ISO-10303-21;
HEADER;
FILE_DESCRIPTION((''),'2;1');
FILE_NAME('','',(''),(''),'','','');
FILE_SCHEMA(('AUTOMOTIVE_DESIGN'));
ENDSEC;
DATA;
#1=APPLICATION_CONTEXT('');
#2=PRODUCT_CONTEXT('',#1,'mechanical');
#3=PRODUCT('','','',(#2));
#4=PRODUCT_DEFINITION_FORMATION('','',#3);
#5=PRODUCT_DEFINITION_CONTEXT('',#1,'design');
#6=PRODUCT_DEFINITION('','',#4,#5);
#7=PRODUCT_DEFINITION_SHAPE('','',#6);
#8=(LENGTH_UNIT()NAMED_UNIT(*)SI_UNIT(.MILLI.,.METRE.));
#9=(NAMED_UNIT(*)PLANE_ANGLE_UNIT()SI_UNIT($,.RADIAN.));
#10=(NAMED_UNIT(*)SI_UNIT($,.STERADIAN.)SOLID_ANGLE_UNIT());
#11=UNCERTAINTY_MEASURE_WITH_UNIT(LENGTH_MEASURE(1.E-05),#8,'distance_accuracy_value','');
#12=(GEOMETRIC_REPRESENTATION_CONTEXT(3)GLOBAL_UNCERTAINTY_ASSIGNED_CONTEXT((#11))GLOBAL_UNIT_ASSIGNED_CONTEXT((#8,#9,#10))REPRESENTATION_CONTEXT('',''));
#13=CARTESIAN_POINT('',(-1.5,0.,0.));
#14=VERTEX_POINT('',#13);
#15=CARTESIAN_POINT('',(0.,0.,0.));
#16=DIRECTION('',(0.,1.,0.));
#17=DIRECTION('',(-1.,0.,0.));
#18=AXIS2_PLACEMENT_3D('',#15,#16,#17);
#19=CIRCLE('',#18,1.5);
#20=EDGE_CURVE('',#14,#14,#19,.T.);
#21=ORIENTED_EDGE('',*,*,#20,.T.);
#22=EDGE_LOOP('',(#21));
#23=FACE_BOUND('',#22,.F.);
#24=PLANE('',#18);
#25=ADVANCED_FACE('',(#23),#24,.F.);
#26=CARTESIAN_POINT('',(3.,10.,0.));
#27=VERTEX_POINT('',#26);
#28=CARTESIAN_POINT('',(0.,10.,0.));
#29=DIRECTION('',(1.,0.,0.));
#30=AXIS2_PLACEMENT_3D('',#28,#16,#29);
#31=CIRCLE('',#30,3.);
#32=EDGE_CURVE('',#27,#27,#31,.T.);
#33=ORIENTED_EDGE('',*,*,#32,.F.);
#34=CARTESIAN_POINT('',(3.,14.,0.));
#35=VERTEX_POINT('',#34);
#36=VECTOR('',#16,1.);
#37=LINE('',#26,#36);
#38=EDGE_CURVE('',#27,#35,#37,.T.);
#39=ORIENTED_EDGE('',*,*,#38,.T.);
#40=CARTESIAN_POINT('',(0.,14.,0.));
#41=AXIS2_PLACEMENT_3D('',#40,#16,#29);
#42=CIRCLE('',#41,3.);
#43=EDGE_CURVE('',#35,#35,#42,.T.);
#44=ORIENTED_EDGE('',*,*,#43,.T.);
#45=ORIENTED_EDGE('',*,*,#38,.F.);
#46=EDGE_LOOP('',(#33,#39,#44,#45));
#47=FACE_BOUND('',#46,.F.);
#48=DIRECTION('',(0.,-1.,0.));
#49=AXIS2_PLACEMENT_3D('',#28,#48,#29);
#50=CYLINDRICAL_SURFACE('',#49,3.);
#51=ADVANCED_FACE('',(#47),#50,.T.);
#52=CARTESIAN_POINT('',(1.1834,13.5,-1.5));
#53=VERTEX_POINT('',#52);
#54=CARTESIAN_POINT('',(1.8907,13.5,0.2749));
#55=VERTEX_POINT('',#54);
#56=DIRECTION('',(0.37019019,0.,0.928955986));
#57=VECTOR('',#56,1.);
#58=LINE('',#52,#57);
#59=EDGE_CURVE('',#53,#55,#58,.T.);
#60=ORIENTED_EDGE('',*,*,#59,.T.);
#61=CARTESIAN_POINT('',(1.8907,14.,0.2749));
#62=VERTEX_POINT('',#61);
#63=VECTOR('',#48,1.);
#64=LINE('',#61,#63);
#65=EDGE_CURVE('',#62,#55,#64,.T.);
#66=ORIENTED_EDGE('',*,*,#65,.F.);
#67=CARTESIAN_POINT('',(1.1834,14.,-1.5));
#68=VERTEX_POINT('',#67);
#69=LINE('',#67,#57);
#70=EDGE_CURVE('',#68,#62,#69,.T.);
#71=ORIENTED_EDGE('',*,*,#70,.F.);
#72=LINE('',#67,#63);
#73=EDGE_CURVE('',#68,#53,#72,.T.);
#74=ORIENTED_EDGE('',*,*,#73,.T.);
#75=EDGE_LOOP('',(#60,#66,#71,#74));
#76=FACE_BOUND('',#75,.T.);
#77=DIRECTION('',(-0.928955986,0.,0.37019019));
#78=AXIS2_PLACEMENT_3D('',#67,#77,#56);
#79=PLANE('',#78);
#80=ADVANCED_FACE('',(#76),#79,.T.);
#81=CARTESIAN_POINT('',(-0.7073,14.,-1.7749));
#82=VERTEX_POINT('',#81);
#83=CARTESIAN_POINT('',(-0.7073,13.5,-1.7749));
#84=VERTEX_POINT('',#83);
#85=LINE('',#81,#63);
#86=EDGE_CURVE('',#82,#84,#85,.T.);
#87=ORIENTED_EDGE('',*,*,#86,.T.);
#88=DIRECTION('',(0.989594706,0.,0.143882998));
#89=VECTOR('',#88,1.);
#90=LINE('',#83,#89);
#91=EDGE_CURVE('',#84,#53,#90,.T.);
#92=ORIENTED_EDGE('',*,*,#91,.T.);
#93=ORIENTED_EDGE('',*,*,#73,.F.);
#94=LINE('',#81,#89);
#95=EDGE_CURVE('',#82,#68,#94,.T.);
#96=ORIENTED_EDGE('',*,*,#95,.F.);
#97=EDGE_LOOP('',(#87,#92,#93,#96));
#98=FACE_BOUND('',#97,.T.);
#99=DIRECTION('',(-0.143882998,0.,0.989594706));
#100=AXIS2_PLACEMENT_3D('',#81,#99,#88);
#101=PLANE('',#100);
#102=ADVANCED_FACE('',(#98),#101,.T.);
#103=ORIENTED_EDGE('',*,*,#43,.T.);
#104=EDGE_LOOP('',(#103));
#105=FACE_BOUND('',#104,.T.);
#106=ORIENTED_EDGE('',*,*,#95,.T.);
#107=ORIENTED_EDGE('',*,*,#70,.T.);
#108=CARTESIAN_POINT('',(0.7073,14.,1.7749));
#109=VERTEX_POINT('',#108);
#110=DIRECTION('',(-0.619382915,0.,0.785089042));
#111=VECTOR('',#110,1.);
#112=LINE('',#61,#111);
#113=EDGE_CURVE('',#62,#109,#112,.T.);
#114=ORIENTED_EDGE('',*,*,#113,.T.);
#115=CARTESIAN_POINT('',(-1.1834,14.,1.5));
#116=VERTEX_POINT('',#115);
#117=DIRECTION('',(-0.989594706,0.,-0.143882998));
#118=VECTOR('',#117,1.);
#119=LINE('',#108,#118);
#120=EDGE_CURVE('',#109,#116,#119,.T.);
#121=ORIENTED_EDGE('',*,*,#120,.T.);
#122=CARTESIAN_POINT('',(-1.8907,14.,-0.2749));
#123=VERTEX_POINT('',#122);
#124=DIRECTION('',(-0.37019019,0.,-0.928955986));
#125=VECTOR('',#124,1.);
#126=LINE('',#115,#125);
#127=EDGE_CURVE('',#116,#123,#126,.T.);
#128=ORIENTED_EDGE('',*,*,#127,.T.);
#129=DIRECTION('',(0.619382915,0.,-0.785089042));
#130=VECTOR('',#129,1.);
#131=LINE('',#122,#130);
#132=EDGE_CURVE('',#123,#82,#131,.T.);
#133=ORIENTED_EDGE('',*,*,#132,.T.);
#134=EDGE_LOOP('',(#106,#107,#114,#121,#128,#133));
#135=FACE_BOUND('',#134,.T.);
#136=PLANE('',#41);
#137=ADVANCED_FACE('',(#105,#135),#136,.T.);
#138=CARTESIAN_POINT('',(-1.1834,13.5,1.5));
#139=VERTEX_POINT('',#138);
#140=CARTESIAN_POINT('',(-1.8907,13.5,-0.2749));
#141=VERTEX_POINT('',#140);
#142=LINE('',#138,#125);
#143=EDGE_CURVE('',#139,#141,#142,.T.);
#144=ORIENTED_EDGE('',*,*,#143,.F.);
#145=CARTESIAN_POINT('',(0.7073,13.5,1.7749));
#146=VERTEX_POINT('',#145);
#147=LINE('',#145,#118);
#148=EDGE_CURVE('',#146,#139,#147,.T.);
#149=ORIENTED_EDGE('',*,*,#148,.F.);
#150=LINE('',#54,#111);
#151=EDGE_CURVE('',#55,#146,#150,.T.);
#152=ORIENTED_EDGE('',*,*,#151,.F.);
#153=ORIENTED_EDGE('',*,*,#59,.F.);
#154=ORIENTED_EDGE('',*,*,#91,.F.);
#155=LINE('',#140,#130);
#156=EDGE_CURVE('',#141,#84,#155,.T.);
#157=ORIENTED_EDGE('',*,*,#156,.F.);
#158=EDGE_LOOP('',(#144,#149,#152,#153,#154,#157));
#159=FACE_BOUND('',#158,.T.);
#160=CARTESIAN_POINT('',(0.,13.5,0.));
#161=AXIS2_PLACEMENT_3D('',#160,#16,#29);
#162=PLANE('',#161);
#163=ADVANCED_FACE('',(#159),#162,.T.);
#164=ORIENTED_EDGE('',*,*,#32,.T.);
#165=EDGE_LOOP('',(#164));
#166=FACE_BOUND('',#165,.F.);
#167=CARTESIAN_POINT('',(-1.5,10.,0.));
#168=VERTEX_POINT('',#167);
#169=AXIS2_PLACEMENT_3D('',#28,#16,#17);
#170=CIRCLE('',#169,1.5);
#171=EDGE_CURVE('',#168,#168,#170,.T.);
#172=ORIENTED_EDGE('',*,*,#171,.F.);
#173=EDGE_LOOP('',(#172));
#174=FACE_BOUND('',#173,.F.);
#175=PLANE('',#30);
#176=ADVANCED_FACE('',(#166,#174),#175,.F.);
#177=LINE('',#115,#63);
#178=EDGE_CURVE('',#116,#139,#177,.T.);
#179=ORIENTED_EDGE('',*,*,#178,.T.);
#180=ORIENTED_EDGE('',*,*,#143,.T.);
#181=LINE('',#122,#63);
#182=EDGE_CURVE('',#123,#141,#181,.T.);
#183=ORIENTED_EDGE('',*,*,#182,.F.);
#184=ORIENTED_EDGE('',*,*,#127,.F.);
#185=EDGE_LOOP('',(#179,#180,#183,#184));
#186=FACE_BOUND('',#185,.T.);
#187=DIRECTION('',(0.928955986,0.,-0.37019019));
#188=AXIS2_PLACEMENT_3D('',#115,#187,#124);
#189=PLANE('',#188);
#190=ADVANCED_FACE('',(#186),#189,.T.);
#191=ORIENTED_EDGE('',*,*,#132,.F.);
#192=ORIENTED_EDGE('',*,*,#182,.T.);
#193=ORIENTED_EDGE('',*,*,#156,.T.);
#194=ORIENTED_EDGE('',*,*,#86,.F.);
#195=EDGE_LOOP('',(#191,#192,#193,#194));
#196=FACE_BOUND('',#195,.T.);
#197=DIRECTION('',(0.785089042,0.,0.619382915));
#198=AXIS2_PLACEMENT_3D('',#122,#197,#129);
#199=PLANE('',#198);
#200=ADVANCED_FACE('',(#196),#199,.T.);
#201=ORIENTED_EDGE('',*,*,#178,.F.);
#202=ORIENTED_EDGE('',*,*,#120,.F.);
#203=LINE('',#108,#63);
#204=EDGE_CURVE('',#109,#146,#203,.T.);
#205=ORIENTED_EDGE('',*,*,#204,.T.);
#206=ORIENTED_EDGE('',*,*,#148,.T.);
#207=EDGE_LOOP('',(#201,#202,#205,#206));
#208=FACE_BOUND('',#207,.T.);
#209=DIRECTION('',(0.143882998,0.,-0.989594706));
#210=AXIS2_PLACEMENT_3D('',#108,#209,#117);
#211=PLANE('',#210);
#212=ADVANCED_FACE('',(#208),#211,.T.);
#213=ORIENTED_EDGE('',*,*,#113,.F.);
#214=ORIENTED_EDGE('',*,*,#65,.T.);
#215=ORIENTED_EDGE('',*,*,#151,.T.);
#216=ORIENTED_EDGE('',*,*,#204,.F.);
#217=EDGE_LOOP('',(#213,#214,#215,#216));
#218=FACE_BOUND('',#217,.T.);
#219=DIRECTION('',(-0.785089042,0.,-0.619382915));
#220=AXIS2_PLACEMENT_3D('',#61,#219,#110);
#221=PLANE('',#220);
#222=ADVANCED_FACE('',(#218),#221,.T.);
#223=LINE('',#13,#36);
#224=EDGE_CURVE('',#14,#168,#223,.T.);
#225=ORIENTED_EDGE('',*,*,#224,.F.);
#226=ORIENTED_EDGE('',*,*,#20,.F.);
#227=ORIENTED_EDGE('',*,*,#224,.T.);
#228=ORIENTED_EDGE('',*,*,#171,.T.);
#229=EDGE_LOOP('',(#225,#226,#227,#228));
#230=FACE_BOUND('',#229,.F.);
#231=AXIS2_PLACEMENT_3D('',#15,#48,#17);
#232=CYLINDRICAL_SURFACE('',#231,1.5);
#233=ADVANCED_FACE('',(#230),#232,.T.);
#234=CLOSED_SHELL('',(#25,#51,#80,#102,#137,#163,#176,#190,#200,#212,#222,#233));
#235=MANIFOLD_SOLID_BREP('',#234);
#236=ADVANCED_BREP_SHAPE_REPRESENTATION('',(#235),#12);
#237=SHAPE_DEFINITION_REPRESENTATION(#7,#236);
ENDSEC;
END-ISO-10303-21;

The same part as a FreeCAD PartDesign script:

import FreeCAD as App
import Part
import Sketcher
Q = App.Units.Quantity


def add_polygon(sketch, points):
    """Adds a closed chain of lines whose ends are joined by coincident constraints."""
    first, n = sketch.GeometryCount, len(points)
    for a, b in zip(points, points[1:] + points[:1]):
        sketch.addGeometry(Part.LineSegment(App.Vector(*a, 0), App.Vector(*b, 0)), False)
    for i in range(n):
        sketch.addConstraint(Sketcher.Constraint("Coincident", first + i, 2, first + (i + 1) % n, 1))

doc = App.newDocument("Part")
params = doc.addObject("Spreadsheet::Sheet", "Params")
for row, (alias, value) in enumerate([
    ("sketch1_diameter", "3 mm"),
    ("pad1_length", "10 mm"),
    ("sketch2_diameter", "6 mm"),
    ("pad2_length", "4 mm"),
    ("pocket1_length", "0.5 mm"),
], start=1):
    params.set(f"A{row}", alias)
    params.set(f"B{row}", "=" + value)
    params.setAlias(f"B{row}", alias)

body = doc.addObject("PartDesign::Body", "Body")

sketch1 = body.newObject("Sketcher::SketchObject", "Sketch")
sketch1.AttachmentSupport = (doc.getObject("XZ_Plane"), [""])
sketch1.MapMode = "FlatFace"
sketch1.addGeometry(Part.Circle(App.Vector(0, 0, 0), App.Vector(0, 0, 1), 1.5), False)
sketch1.addConstraint([
    Sketcher.Constraint("Coincident", 0, 3, -1, 1),
    Sketcher.Constraint("Diameter", 0, Q("3 mm")),
])
sketch1.setExpression("Constraints[1]", "Params.sketch1_diameter")
pad1 = body.newObject("PartDesign::Pad", "Pad")
pad1.Profile = sketch1
pad1.setExpression("Length", "Params.pad1_length")
pad1.Reversed = True

sketch2 = body.newObject("Sketcher::SketchObject", "Sketch001")
sketch2.AttachmentSupport = (doc.getObject("XZ_Plane"), [""])
sketch2.MapMode = "FlatFace"
sketch2.AttachmentOffset = App.Placement(App.Vector(0, 0, -10), App.Rotation())
sketch2.addGeometry(Part.Circle(App.Vector(0, 0, 0), App.Vector(0, 0, 1), 3), False)
sketch2.addConstraint([
    Sketcher.Constraint("Coincident", 0, 3, -1, 1),
    Sketcher.Constraint("Diameter", 0, Q("6 mm")),
])
sketch2.setExpression("Constraints[1]", "Params.sketch2_diameter")
pad2 = body.newObject("PartDesign::Pad", "Pad001")
pad2.Profile = sketch2
pad2.setExpression("Length", "Params.pad2_length")
pad2.Reversed = True

sketch3 = body.newObject("Sketcher::SketchObject", "Sketch002")
sketch3.AttachmentSupport = (doc.getObject("XZ_Plane"), [""])
sketch3.MapMode = "FlatFace"
sketch3.AttachmentOffset = App.Placement(App.Vector(0, 0, -14), App.Rotation())
add_polygon(sketch3, [(1.9, 0.3), (1.2, -1.5), (-0.7, -1.8), (-1.9, -0.3), (-1.2, 1.5), (0.7, 1.8)])
sketch3.addConstraint([
    Sketcher.Constraint("Symmetric", 0, 2, 3, 2, -1, 1),
    Sketcher.Constraint("Symmetric", 1, 2, 4, 2, -1, 1),
    Sketcher.Constraint("Symmetric", 2, 2, 5, 2, -1, 1),
    Sketcher.Constraint("Equal", 0, 1),
    Sketcher.Constraint("Equal", 1, 2),
    Sketcher.Constraint("DistanceY", 0, 2, 3, 2, Q("3 mm")),
    Sketcher.Constraint("Angle", 2, Q("128.271 deg")),
    Sketcher.Constraint("DistanceY", 1, 2, 2, 2, Q("1.5 mm")),
    Sketcher.Constraint("DistanceY", 1, 2, -1, 1, Q("1.775 mm")),
])
pocket1 = body.newObject("PartDesign::Pocket", "Pocket")
pocket1.Profile = sketch3
pocket1.setExpression("Length", "Params.pocket1_length")
pocket1.Reversed = True

doc.recompute()
